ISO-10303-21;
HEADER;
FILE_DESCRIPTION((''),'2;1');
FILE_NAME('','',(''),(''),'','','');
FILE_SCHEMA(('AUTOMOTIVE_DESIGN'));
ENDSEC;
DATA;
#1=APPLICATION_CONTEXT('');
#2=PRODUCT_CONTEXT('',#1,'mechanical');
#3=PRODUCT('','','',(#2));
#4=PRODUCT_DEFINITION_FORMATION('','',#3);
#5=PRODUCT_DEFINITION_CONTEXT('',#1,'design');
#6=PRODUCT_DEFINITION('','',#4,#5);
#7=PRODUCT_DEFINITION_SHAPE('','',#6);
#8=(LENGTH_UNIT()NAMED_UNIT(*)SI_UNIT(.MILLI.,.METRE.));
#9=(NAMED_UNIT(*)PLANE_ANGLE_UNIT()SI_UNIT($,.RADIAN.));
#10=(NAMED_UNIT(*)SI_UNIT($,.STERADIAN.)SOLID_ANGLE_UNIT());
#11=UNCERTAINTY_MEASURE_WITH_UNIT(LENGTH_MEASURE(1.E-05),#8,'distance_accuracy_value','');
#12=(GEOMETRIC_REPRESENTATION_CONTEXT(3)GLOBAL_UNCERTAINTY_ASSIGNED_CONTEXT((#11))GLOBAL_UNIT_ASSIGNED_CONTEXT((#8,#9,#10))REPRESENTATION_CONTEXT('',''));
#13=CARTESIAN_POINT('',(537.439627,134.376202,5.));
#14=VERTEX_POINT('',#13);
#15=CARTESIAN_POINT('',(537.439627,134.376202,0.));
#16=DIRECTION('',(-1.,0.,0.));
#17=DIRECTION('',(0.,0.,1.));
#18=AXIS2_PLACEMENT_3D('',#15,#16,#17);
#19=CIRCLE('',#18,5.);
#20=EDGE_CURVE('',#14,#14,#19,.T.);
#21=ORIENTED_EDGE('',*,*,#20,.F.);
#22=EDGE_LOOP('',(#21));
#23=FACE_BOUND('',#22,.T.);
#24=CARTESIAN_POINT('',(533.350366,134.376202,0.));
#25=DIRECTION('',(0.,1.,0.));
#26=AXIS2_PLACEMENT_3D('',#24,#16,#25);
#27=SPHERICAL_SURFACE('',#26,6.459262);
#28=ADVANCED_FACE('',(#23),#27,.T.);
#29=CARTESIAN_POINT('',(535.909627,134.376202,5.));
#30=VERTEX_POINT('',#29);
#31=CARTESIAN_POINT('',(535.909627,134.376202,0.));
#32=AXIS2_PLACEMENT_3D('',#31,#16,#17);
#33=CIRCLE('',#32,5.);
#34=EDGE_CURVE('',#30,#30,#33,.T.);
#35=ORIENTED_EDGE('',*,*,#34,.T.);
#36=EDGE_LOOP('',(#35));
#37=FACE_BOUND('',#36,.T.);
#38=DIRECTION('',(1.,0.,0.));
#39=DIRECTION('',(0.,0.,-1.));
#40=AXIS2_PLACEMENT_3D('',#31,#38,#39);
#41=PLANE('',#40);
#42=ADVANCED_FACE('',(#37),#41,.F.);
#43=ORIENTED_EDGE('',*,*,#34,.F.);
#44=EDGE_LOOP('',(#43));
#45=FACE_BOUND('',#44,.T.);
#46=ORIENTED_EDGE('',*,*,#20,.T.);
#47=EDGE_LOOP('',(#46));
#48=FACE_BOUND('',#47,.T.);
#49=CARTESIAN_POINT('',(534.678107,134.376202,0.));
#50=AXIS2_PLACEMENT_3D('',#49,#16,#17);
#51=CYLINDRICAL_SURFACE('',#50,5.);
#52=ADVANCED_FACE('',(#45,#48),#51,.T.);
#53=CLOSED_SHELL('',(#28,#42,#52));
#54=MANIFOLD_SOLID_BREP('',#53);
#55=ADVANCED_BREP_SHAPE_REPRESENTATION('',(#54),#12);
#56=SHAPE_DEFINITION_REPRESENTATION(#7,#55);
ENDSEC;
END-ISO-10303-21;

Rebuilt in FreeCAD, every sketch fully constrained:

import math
import FreeCAD as App
import Part
import Sketcher

V = App.Vector

doc = App.newDocument("Part")
body = doc.addObject("PartDesign::Body", "Body")

# Sketch on XY plane
sketch1 = doc.addObject("Sketcher::SketchObject", "Sketch")
body.addObject(sketch1)
sketch1.AttachmentSupport = (doc.XY_Plane, [""])
sketch1.MapMode = "FlatFace"
sketch1.addGeometry(Part.LineSegment(V(535.9, 139.4, 0), V(535.9, 134.4, 0)), False)
sketch1.addGeometry(Part.LineSegment(V(535.9, 134.4, 0), V(539.8, 134.4, 0)), False)
sketch1.addGeometry(Part.ArcOfCircle(Part.Circle(V(533.4, 134.4, 0), V(0, 0, 1), 6.5), math.radians(0), math.radians(51)), False)
sketch1.addGeometry(Part.LineSegment(V(537.4, 139.4, 0), V(535.9, 139.4, 0)), False)
sketch1.addGeometry(Part.LineSegment(V(533.4, 134.4, 0), V(539.8, 134.4, 0)), True)  # axis
sketch1.addConstraint(Sketcher.Constraint("Coincident", 0, 2, 1, 1))
sketch1.addConstraint(Sketcher.Constraint("Coincident", 1, 2, 2, 1))
sketch1.addConstraint(Sketcher.Constraint("Coincident", 2, 2, 3, 1))
sketch1.addConstraint(Sketcher.Constraint("Coincident", 3, 2, 0, 1))
sketch1.addConstraint(Sketcher.Constraint("Vertical", 0))
sketch1.addConstraint(Sketcher.Constraint("Horizontal", 1))
sketch1.addConstraint(Sketcher.Constraint("Horizontal", 3))
sketch1.addConstraint(Sketcher.Constraint("Horizontal", 4))
sketch1.addConstraint(Sketcher.Constraint("Coincident", 4, 1, 2, 3))
sketch1.addConstraint(Sketcher.Constraint("Coincident", 4, 2, 1, 2))
sketch1.addConstraint(Sketcher.Constraint("DistanceY", 0, 2, 0, 1, 5.0))
sketch1.addConstraint(Sketcher.Constraint("DistanceX", 1, 1, 1, 2, 3.9))
sketch1.addConstraint(Sketcher.Constraint("DistanceX", 3, 2, 3, 1, 1.53))
sketch1.addConstraint(Sketcher.Constraint("DistanceY", -1, 1, 2, 3, 134.376202))
sketch1.addConstraint(Sketcher.Constraint("DistanceX", -1, 1, 2, 3, 533.350366))
revolution = doc.addObject("PartDesign::Revolution", "Revolution")
body.addObject(revolution)
revolution.Profile = sketch1
revolution.ReferenceAxis = (sketch1, ["Axis0"])
revolution.Angle = 360

doc.recompute()
